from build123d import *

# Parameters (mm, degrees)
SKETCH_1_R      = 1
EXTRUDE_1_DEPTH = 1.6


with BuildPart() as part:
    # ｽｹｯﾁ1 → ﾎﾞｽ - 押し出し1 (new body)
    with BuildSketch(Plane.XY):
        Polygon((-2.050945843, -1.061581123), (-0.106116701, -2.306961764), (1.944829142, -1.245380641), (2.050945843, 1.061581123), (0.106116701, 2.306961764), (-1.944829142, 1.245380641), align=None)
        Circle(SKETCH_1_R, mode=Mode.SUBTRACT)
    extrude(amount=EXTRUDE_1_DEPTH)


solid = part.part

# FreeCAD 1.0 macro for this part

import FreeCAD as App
import Part
import Sketcher

doc = App.newDocument("Part")
body = doc.addObject("PartDesign::Body", "Body")

# Sketch on XY plane
sketch1 = body.newObject("Sketcher::SketchObject", "Sketch")
sketch1.AttachmentSupport = (doc.getObject("XY_Plane"), [""])
sketch1.MapMode = "FlatFace"
sketch1.addGeometry([
    Part.LineSegment(App.Vector(-2.050946, -1.061581, 0), App.Vector(-0.106117, -2.306962, 0)),  # 0
    Part.LineSegment(App.Vector(-0.106117, -2.306962, 0), App.Vector(1.944829, -1.245381, 0)),  # 1
    Part.LineSegment(App.Vector(1.944829, -1.245381, 0), App.Vector(2.050946, 1.061581, 0)),  # 2
    Part.LineSegment(App.Vector(2.050946, 1.061581, 0), App.Vector(0.106117, 2.306962, 0)),  # 3
    Part.LineSegment(App.Vector(0.106117, 2.306962, 0), App.Vector(-1.944829, 1.245381, 0)),  # 4
    Part.LineSegment(App.Vector(-1.944829, 1.245381, 0), App.Vector(-2.050946, -1.061581, 0)),  # 5
    Part.Circle(App.Vector(0, 0, 0), App.Vector(0, 0, 1), 1),  # 6
], False)
sketch1.addConstraint([
    Sketcher.Constraint("Coincident", 0, 2, 1, 1),
    Sketcher.Constraint("Coincident", 1, 2, 2, 1),
    Sketcher.Constraint("Coincident", 2, 2, 3, 1),
    Sketcher.Constraint("Coincident", 3, 2, 4, 1),
    Sketcher.Constraint("Coincident", 4, 2, 5, 1),
    Sketcher.Constraint("Coincident", 5, 2, 0, 1),
    Sketcher.Constraint("Coincident", 6, 3, -1, 1),
    Sketcher.Constraint("Symmetric", 0, 2, 3, 2, -1, 1),
    Sketcher.Constraint("Symmetric", 1, 2, 4, 2, -1, 1),
    Sketcher.Constraint("Symmetric", 2, 2, 5, 2, -1, 1),
    Sketcher.Constraint("Equal", 0, 1),
    Sketcher.Constraint("Equal", 1, 2),
    Sketcher.Constraint("Diameter", 6, 2.0),
    Sketcher.Constraint("Distance", 0, 2.309401),
    Sketcher.Constraint("DistanceY", 2, 2, 4, 2, 0.1838),
    Sketcher.Constraint("DistanceY", 0, 2, -1, 1, 2.306962),
    Sketcher.Constraint("DistanceX", -1, 1, 1, 2, 1.944829),
])
pad1 = body.newObject("PartDesign::Pad", "Pad")
pad1.Profile = sketch1
pad1.Length = 1.6

doc.recompute()
